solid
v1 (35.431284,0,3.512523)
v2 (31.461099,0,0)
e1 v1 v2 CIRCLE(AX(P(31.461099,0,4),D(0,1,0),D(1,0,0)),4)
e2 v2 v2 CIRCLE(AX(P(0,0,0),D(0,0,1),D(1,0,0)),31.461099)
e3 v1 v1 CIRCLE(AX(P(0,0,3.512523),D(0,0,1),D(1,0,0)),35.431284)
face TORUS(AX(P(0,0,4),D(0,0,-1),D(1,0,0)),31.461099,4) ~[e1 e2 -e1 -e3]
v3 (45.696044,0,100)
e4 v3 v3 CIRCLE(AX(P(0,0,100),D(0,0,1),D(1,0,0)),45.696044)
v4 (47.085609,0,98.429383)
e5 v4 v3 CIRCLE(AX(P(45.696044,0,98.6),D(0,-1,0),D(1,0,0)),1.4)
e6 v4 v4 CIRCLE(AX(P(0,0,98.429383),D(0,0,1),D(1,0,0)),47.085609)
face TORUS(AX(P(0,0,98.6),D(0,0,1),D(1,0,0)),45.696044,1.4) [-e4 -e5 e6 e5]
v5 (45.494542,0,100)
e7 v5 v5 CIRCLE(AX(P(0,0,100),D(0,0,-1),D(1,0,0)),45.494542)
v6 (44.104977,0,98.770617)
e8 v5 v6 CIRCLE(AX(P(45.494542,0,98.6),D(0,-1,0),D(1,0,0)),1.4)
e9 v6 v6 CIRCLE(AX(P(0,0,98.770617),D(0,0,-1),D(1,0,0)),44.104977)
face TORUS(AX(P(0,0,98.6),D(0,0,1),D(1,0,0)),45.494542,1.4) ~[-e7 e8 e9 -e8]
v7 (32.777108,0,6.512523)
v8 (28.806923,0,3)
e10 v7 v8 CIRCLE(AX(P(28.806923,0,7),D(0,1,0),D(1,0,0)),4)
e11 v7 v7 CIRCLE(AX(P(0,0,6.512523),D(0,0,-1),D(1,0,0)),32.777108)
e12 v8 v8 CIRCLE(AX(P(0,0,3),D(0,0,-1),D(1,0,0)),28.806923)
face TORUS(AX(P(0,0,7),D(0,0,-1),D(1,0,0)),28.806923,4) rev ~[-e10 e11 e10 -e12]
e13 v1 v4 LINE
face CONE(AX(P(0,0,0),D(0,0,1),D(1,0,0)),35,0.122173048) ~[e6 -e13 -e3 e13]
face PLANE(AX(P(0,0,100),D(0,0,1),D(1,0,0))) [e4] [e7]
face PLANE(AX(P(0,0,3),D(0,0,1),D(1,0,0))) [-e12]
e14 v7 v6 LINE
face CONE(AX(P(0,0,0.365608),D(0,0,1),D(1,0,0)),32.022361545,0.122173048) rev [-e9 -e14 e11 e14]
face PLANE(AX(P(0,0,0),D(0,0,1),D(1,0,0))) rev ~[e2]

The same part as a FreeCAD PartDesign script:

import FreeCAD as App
import Part
import Sketcher

V = App.Vector


def edges_at(feature, points):
    """Names of the edges that pass closest to the given points."""
    edges = feature.Shape.Edges
    near = lambda p: min(range(len(edges)), key=lambda i: edges[i].distToShape(Part.Vertex(*p))[0])
    return sorted({f"Edge{near(p) + 1}" for p in points})


def faces_at(feature, points):
    """Names of the faces that lie closest to the given points."""
    faces = feature.Shape.Faces
    near = lambda p: min(range(len(faces)), key=lambda i: faces[i].distToShape(Part.Vertex(*p))[0])
    return sorted({f"Face{near(p) + 1}" for p in points})

doc = App.newDocument("Part")
params = doc.addObject("Spreadsheet::Sheet", "Params")
for row, (alias, value) in enumerate([
    ("sketch1_diameter", "70 mm"),
    ("pad1_length", "100 mm"),
    ("pad1_taper", "7 deg"),
    ("thickness_wall", "3 mm"),
    ("fillet_radius", "1.4 mm"),
    ("fillet2_radius", "4 mm"),
], start=1):
    params.set(f"A{row}", alias)
    params.set(f"B{row}", "=" + value)
    params.setAlias(f"B{row}", alias)

body = doc.addObject("PartDesign::Body", "Body")

sketch1 = doc.addObject("Sketcher::SketchObject", "Sketch")
body.addObject(sketch1)
sketch1.AttachmentSupport = (doc.XY_Plane, [""])
sketch1.MapMode = "FlatFace"
sketch1.addGeometry(Part.Circle(V(0, 0, 0), V(0, 0, 1), 35), False)
sketch1.addConstraint(Sketcher.Constraint("Coincident", 0, 3, -1, 1))
sketch1.addConstraint(Sketcher.Constraint("Diameter", 0, 70.0))
sketch1.setExpression("Constraints[1]", "Params.sketch1_diameter")
pad1 = doc.addObject("PartDesign::Pad", "Pad")
body.addObject(pad1)
pad1.Profile = sketch1
pad1.setExpression("Length", "Params.pad1_length")
pad1.setExpression("TaperAngle", "Params.pad1_taper")
doc.recompute()

thickness = doc.addObject("PartDesign::Thickness", "Thickness")
body.addObject(thickness)
thickness.Base = (pad1, faces_at(pad1, [(-3.195, -13.297, 100)]))
thickness.setExpression("Value", "Params.thickness_wall")
thickness.Reversed = True
thickness.Join = "Intersection"
doc.recompute()

fillet = doc.addObject("PartDesign::Fillet", "Fillet")
body.addObject(fillet)
fillet.Base = (thickness, edges_at(thickness, [(-44.079, 17.097, 100), (-41.261, 16.004, 100)]))
fillet.setExpression("Radius", "Params.fillet_radius")
doc.recompute()

fillet2 = doc.addObject("PartDesign::Fillet", "Fillet001")
body.addObject(fillet2)
fillet2.Base = (fillet, edges_at(fillet, [(-32.632, -12.656, 0), (-30.157, -11.697, 3)]))
fillet2.setExpression("Radius", "Params.fillet2_radius")

doc.recompute()
